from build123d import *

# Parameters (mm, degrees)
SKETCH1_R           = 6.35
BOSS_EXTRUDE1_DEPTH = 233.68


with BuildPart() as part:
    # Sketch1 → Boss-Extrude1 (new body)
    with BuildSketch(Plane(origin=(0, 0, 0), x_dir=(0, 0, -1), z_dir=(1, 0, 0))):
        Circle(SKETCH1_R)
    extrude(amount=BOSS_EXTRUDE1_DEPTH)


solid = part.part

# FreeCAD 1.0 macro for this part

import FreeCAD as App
import Part
import Sketcher
from FreeCAD import Vector
Q = App.Units.Quantity

doc = App.newDocument("Part")
body = doc.addObject("PartDesign::Body", "Body")

# Sketch on YZ plane
sketch1 = doc.addObject("Sketcher::SketchObject", "Sketch")
body.addObject(sketch1)
sketch1.AttachmentSupport = (doc.YZ_Plane, [""])
sketch1.MapMode = "FlatFace"
sketch1.addGeometry(Part.Circle(Vector(0, 0, 0), Vector(0, 0, 1), 6), False)
sketch1.addConstraint([
    Sketcher.Constraint("Coincident", 0, 3, -1, 1),
    Sketcher.Constraint("Diameter", 0, Q("0.5 in")),
])
pad1 = doc.addObject("PartDesign::Pad", "Pad")
body.addObject(pad1)
pad1.Profile = sketch1
pad1.Length = Q("9.2 in")

doc.recompute()
